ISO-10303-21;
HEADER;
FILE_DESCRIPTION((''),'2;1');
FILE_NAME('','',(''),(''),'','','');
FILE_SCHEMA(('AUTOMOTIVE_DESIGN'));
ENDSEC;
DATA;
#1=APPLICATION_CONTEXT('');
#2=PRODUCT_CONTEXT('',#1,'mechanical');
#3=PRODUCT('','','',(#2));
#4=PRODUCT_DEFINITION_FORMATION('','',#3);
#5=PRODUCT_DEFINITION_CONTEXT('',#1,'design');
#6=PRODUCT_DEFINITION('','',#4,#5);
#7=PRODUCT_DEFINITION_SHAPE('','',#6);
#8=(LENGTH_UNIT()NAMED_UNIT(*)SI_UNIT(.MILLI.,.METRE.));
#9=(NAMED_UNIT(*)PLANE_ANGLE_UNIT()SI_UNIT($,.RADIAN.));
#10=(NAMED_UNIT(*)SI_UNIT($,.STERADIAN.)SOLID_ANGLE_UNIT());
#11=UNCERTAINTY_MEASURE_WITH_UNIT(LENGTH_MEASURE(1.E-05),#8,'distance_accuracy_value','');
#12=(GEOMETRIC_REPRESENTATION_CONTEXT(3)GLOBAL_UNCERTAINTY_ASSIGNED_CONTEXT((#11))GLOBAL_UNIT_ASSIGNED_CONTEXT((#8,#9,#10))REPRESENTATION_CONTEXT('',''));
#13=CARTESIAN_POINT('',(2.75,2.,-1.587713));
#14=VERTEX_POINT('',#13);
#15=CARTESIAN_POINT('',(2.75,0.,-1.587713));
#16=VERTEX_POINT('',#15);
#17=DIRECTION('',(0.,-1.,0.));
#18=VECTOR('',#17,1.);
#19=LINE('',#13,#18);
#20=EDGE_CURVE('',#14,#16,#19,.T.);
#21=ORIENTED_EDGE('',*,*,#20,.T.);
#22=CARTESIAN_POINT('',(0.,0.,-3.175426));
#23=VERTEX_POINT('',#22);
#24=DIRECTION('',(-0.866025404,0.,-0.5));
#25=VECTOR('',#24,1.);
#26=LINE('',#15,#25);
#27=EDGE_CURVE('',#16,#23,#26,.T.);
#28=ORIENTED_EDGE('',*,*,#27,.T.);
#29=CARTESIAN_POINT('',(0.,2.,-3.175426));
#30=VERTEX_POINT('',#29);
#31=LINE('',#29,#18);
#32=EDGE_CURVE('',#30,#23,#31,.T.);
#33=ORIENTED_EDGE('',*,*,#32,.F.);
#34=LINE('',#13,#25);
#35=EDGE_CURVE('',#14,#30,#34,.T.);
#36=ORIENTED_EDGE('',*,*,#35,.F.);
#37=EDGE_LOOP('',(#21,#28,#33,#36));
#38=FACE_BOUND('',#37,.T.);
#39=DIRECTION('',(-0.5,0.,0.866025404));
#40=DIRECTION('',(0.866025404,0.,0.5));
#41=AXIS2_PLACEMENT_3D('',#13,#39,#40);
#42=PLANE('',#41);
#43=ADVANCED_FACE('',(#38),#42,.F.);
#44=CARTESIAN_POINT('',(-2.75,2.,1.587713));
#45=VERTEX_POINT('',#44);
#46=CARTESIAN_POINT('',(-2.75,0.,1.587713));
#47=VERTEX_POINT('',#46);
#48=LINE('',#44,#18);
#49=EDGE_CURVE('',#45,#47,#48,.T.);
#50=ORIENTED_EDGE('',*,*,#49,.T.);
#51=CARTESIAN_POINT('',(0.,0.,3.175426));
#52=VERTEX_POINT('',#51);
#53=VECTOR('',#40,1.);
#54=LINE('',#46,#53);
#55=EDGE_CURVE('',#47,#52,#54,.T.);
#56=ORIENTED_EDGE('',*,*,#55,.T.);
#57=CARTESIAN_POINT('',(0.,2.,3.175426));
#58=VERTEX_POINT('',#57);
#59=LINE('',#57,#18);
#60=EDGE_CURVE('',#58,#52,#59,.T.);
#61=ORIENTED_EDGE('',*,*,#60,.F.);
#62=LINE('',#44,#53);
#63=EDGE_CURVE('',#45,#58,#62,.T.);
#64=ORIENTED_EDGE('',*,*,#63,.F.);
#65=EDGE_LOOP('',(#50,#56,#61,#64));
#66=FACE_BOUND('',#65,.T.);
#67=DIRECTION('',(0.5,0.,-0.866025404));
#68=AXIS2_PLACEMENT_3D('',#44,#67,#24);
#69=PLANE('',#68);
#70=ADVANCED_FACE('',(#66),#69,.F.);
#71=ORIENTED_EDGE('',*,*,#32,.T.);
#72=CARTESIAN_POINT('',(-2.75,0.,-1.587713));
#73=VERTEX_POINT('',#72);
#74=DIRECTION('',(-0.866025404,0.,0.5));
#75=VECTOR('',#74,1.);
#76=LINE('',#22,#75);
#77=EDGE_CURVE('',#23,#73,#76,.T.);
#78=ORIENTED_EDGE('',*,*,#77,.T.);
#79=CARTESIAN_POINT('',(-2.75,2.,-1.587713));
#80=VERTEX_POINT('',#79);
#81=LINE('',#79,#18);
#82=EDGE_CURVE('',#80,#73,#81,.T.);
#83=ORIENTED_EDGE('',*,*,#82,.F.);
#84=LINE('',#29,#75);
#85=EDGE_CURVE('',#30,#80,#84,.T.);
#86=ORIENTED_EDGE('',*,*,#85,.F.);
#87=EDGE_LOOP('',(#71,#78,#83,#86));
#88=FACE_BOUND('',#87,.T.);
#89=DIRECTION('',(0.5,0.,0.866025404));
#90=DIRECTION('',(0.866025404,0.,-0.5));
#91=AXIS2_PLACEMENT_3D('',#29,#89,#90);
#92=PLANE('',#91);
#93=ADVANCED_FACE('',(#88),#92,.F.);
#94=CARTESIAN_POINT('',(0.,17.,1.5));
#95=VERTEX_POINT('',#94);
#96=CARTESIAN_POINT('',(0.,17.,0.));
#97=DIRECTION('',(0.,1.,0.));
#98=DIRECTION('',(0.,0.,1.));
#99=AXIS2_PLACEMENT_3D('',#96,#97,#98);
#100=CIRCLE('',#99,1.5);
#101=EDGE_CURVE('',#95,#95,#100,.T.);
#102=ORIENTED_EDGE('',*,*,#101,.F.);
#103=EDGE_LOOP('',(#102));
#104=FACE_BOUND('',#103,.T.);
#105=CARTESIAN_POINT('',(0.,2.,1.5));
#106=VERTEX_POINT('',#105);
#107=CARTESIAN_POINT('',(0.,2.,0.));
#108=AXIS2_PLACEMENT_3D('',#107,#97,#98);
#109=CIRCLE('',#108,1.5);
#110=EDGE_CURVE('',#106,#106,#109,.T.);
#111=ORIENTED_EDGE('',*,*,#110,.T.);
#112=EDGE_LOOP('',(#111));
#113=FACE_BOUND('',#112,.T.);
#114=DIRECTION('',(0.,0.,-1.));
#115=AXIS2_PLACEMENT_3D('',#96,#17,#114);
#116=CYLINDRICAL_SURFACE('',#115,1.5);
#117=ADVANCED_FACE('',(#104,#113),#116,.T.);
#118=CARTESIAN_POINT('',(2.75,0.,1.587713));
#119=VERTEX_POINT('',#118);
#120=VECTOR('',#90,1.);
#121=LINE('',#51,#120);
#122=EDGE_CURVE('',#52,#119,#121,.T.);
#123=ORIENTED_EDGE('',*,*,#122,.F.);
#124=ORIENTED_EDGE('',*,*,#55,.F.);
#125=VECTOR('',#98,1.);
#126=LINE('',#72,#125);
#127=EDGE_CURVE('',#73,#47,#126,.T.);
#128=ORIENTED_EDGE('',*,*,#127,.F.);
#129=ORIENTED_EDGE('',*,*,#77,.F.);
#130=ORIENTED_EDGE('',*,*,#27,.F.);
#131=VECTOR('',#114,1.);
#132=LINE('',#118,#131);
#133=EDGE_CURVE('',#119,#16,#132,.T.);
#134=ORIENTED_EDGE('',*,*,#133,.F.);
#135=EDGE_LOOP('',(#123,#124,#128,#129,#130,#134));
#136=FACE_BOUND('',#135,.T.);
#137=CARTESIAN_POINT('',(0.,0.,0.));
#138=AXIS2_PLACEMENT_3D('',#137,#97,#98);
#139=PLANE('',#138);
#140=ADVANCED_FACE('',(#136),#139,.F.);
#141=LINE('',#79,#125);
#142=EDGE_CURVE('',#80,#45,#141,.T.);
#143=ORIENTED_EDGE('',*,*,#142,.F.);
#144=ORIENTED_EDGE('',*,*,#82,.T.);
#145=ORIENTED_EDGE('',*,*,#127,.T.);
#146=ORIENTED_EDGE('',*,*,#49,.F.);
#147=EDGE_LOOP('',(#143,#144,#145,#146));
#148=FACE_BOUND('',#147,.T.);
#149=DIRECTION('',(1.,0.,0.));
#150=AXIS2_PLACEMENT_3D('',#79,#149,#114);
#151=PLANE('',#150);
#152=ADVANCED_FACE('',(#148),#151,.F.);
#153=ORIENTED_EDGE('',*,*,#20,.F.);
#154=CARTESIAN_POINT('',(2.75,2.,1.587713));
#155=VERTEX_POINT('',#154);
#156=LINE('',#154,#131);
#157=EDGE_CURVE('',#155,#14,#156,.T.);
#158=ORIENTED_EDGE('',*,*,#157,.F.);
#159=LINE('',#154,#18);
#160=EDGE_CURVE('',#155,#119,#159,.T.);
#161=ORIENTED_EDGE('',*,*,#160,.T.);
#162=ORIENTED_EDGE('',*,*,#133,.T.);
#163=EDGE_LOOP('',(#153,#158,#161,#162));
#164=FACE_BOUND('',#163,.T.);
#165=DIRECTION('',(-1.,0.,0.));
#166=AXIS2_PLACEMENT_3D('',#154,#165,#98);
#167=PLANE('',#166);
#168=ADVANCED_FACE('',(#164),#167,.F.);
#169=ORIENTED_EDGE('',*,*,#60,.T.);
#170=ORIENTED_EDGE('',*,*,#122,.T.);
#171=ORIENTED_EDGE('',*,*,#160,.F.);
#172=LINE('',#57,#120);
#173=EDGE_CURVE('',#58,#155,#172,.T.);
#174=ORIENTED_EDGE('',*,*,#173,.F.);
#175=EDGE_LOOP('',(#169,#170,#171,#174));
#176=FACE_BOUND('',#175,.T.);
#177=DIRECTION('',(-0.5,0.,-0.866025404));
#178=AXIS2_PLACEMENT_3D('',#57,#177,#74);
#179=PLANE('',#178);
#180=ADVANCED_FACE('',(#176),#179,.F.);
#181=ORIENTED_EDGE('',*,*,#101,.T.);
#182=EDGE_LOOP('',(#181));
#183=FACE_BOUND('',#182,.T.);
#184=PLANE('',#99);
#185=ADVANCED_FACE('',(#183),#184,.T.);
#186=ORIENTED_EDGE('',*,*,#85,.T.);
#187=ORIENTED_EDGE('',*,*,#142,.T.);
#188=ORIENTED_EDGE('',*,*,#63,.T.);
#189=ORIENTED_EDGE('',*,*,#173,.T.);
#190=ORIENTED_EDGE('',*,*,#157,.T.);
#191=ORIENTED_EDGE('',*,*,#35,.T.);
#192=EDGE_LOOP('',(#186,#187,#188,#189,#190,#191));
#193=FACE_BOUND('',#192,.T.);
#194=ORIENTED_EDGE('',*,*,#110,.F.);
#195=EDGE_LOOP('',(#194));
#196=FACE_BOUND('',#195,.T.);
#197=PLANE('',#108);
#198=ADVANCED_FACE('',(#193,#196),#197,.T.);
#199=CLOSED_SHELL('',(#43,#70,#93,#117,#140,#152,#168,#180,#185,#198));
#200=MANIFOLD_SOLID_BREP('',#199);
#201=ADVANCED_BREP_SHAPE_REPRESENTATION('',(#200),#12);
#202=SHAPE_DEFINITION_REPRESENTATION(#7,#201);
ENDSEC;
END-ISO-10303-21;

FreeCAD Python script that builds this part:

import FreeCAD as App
import Part
import Sketcher
from FreeCAD import Vector
Q = App.Units.Quantity


def add_polygon(sketch, points):
    """Adds a closed chain of lines whose ends are joined by coincident constraints."""
    first, n = sketch.GeometryCount, len(points)
    for a, b in zip(points, points[1:] + points[:1]):
        sketch.addGeometry(Part.LineSegment(App.Vector(*a, 0), App.Vector(*b, 0)), False)
    for i in range(n):
        sketch.addConstraint(Sketcher.Constraint("Coincident", first + i, 2, first + (i + 1) % n, 1))

doc = App.newDocument("Part")
params = doc.addObject("Spreadsheet::Sheet", "Params")
for row, (alias, value) in enumerate([
    ("pad1_length", "2 mm"),
    ("sketch2_diameter", "3 mm"),
    ("pad2_length", "15 mm"),
], start=1):
    params.set(f"A{row}", alias)
    params.set(f"B{row}", "=" + value)
    params.setAlias(f"B{row}", alias)

body = doc.addObject("PartDesign::Body", "Body")

# Sketch on XZ plane
sketch1 = body.newObject("Sketcher::SketchObject", "Sketch")
sketch1.AttachmentSupport = (doc.getObject("XZ_Plane"), [""])
sketch1.MapMode = "FlatFace"
add_polygon(sketch1, [(0, -3.2), (-2.8, -1.6), (-2.8, 1.6), (0, 3.2), (2.8, 1.6), (2.8, -1.6)])  # lines 0-5
sketch1.addConstraint(Sketcher.Constraint("Vertical", 1))
sketch1.addConstraint(Sketcher.Constraint("Vertical", 4))
sketch1.addConstraint(Sketcher.Constraint("Symmetric", 0, 2, 3, 2, -1, 1))
sketch1.addConstraint(Sketcher.Constraint("Symmetric", 2, 2, 5, 2, -1, 1))
sketch1.addConstraint(Sketcher.Constraint("PointOnObject", 2, 2, -2))
sketch1.addConstraint(Sketcher.Constraint("Parallel", 2, 5))
sketch1.addConstraint(Sketcher.Constraint("Horizontal", 1, 2, 3, 2))
sketch1.addConstraint(Sketcher.Constraint("Angle", 0, Q("150 deg")))
sketch1.addConstraint(Sketcher.Constraint("DistanceX", 1, 2, 3, 2, 5.5))
sketch1.addConstraint(Sketcher.Constraint("DistanceY", 1, 1, 1, 2, 3.175426))
pad1 = body.newObject("PartDesign::Pad", "Pad")
pad1.Profile = sketch1
pad1.setExpression("Length", "Params.pad1_length")
pad1.Reversed = True

# Sketch on XZ plane
sketch2 = body.newObject("Sketcher::SketchObject", "Sketch001")
sketch2.AttachmentSupport = (doc.getObject("XZ_Plane"), [""])
sketch2.MapMode = "FlatFace"
sketch2.AttachmentOffset = App.Placement(Vector(0, 0, -2), App.Rotation())
sketch2.addGeometry(Part.Circle(Vector(0, 0, 0), Vector(0, 0, 1), 1.5), False)
sketch2.addConstraint(Sketcher.Constraint("Coincident", 0, 3, -1, 1))
sketch2.addConstraint(Sketcher.Constraint("Diameter", 0, 3.0))
sketch2.setExpression("Constraints[1]", "Params.sketch2_diameter")
pad2 = body.newObject("PartDesign::Pad", "Pad001")
pad2.Profile = sketch2
pad2.setExpression("Length", "Params.pad2_length")
pad2.Reversed = True

doc.recompute()
